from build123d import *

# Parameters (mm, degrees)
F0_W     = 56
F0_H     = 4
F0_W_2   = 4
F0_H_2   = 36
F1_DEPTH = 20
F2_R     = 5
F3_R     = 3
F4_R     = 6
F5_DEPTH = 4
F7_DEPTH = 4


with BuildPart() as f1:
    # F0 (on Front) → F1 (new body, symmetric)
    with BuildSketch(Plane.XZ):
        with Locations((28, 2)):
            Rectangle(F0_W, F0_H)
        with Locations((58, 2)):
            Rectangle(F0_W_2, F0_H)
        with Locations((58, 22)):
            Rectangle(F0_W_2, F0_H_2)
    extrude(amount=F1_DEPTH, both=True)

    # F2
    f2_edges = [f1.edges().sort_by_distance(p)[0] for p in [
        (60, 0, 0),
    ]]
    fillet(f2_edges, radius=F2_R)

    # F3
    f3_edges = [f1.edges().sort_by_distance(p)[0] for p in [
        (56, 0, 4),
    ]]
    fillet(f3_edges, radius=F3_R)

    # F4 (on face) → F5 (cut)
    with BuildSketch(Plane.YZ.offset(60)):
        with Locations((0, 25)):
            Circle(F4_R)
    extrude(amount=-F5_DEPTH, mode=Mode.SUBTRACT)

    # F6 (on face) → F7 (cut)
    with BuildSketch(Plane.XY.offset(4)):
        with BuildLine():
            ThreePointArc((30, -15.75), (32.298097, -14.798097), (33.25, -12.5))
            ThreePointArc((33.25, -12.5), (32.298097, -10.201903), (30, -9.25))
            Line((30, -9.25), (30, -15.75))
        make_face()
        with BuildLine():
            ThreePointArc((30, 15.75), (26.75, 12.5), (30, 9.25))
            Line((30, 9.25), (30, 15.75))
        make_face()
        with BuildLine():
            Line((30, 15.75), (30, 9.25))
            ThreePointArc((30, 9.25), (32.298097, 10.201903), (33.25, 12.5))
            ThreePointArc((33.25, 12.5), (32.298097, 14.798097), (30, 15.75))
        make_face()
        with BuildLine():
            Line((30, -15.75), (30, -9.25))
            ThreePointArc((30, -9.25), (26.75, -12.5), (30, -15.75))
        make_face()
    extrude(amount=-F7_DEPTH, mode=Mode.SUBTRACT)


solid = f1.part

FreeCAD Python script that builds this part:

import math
import FreeCAD as App
import Part
import Sketcher
Q = App.Units.Quantity


def edges_at(feature, points):
    """Names of the edges that pass closest to the given points."""
    edges = feature.Shape.Edges
    near = lambda p: min(range(len(edges)), key=lambda i: edges[i].distToShape(Part.Vertex(*p))[0])
    return sorted({f"Edge{near(p) + 1}" for p in points})

doc = App.newDocument("Part")
params = doc.addObject("Spreadsheet::Sheet", "Params")
for row, (alias, value) in enumerate([
    ("sketch1_width", "60 mm"),
    ("sketch1_width2", "4 mm"),
    ("sketch1_height", "40 mm"),
    ("pad1_length", "40 mm"),
    ("fillet_radius", "5 mm"),
    ("fillet2_radius", "3 mm"),
    ("sketch2_diameter", "12 mm"),
    ("pocket1_length", "4 mm"),
    ("sketch3_radius", "3.25 mm"),
    ("pocket2_length", "4 mm"),
], start=1):
    params.set(f"A{row}", alias)
    params.set(f"B{row}", "=" + value)
    params.setAlias(f"B{row}", alias)

body = doc.addObject("PartDesign::Body", "Body")

sketch1 = doc.addObject("Sketcher::SketchObject", "Sketch")
body.addObject(sketch1)
sketch1.AttachmentSupport = (doc.XZ_Plane, [""])
sketch1.MapMode = "FlatFace"
sketch1.addGeometry([
    Part.LineSegment(App.Vector(0, 4, 0), App.Vector(0, 0, 0)),
    Part.LineSegment(App.Vector(0, 0, 0), App.Vector(60, 0, 0)),
    Part.LineSegment(App.Vector(60, 0, 0), App.Vector(60, 40, 0)),
    Part.LineSegment(App.Vector(60, 40, 0), App.Vector(56, 40, 0)),
    Part.LineSegment(App.Vector(56, 40, 0), App.Vector(56, 4, 0)),
    Part.LineSegment(App.Vector(56, 4, 0), App.Vector(0, 4, 0)),
], False)
sketch1.addConstraint([
    Sketcher.Constraint("Coincident", 0, 2, 1, 1),
    Sketcher.Constraint("Coincident", 1, 2, 2, 1),
    Sketcher.Constraint("Coincident", 2, 2, 3, 1),
    Sketcher.Constraint("Coincident", 3, 2, 4, 1),
    Sketcher.Constraint("Coincident", 4, 2, 5, 1),
    Sketcher.Constraint("Coincident", 5, 2, 0, 1),
    Sketcher.Constraint("Vertical", 0),
    Sketcher.Constraint("Horizontal", 1),
    Sketcher.Constraint("Vertical", 2),
    Sketcher.Constraint("Horizontal", 3),
    Sketcher.Constraint("Vertical", 4),
    Sketcher.Constraint("Horizontal", 5),
    Sketcher.Constraint("Coincident", 0, 2, -1, 1),
    Sketcher.Constraint("Equal", 3, 0),
    Sketcher.Constraint("DistanceX", 1, 1, 1, 2, Q("60 mm")),
    Sketcher.Constraint("DistanceX", 3, 2, 3, 1, Q("4 mm")),
    Sketcher.Constraint("DistanceY", 2, 1, 2, 2, Q("40 mm")),
])
sketch1.setExpression("Constraints[14]", "Params.sketch1_width")
sketch1.setExpression("Constraints[15]", "Params.sketch1_width2")
sketch1.setExpression("Constraints[16]", "Params.sketch1_height")
pad1 = doc.addObject("PartDesign::Pad", "Pad")
body.addObject(pad1)
pad1.Profile = sketch1
pad1.setExpression("Length", "Params.pad1_length")
pad1.Midplane = True
doc.recompute()

fillet = doc.addObject("PartDesign::Fillet", "Fillet")
body.addObject(fillet)
fillet.Base = (pad1, edges_at(pad1, [(60, 0, 0)]))
fillet.setExpression("Radius", "Params.fillet_radius")
doc.recompute()

fillet2 = doc.addObject("PartDesign::Fillet", "Fillet001")
body.addObject(fillet2)
fillet2.Base = (fillet, edges_at(fillet, [(56, 0, 4)]))
fillet2.setExpression("Radius", "Params.fillet2_radius")

sketch2 = doc.addObject("Sketcher::SketchObject", "Sketch001")
body.addObject(sketch2)
sketch2.AttachmentSupport = (doc.YZ_Plane, [""])
sketch2.MapMode = "FlatFace"
sketch2.AttachmentOffset = App.Placement(App.Vector(0, 0, 60), App.Rotation())
sketch2.addGeometry(Part.Circle(App.Vector(0, 25, 0), App.Vector(0, 0, 1), 6), False)
sketch2.addConstraint([
    Sketcher.Constraint("PointOnObject", 0, 3, -2),
    Sketcher.Constraint("Diameter", 0, Q("12 mm")),
    Sketcher.Constraint("DistanceY", -1, 1, 0, 3, Q("25 mm")),
])
sketch2.setExpression("Constraints[1]", "Params.sketch2_diameter")
pocket1 = doc.addObject("PartDesign::Pocket", "Pocket")
body.addObject(pocket1)
pocket1.Profile = sketch2
pocket1.setExpression("Length", "Params.pocket1_length")

sketch3 = doc.addObject("Sketcher::SketchObject", "Sketch002")
body.addObject(sketch3)
sketch3.AttachmentSupport = (doc.XY_Plane, [""])
sketch3.MapMode = "FlatFace"
sketch3.AttachmentOffset = App.Placement(App.Vector(0, 0, 4), App.Rotation())
sketch3.addGeometry([
    Part.ArcOfCircle(Part.Circle(App.Vector(30, -12.5, 0), App.Vector(0, 0, 1), 3.3), math.radians(-90), math.radians(0)),
    Part.ArcOfCircle(Part.Circle(App.Vector(30, -12.5, 0), App.Vector(0, 0, 1), 3.3), math.radians(0), math.radians(90)),
    Part.ArcOfCircle(Part.Circle(App.Vector(30, -12.5, 0), App.Vector(0, 0, 1), 3.2), math.radians(90), math.radians(270)),
    Part.ArcOfCircle(Part.Circle(App.Vector(30, 12.5, 0), App.Vector(0, 0, 1), 3.2), math.radians(90), math.radians(270)),
    Part.ArcOfCircle(Part.Circle(App.Vector(30, 12.5, 0), App.Vector(0, 0, 1), 3.3), math.radians(-90), math.radians(0)),
    Part.ArcOfCircle(Part.Circle(App.Vector(30, 12.5, 0), App.Vector(0, 0, 1), 3.3), math.radians(0), math.radians(90)),
], False)
sketch3.addConstraint([
    Sketcher.Constraint("Tangent", 0, 2, 1, 1),
    Sketcher.Constraint("Tangent", 1, 2, 2, 1),
    Sketcher.Constraint("Tangent", 2, 2, 0, 1),
    Sketcher.Constraint("Tangent", 3, 2, 4, 1),
    Sketcher.Constraint("Tangent", 4, 2, 5, 1),
    Sketcher.Constraint("Tangent", 5, 2, 3, 1),
    Sketcher.Constraint("Equal", 2, 3),
    Sketcher.Constraint("Symmetric", 0, 3, 3, 3, -1),
    Sketcher.Constraint("Horizontal", 2, 3, 0, 2),
    Sketcher.Constraint("Horizontal", 5, 3, 4, 2),
    Sketcher.Constraint("Vertical", 5, 3, 1, 2),
    Sketcher.Constraint("Vertical", 1, 2, 2, 2),
    Sketcher.Constraint("Vertical", 2, 2, 3, 2),
    Sketcher.Constraint("Vertical", 3, 2, 5, 2),
    Sketcher.Constraint("Radius", 0, Q("3.25 mm")),
    Sketcher.Constraint("DistanceX", -1, 1, 0, 3, Q("30 mm")),
    Sketcher.Constraint("DistanceY", 0, 3, 3, 3, Q("25 mm")),
])
sketch3.setExpression("Constraints[14]", "Params.sketch3_radius")
pocket2 = doc.addObject("PartDesign::Pocket", "Pocket001")
body.addObject(pocket2)
pocket2.Profile = sketch3
pocket2.setExpression("Length", "Params.pocket2_length")

doc.recompute()
